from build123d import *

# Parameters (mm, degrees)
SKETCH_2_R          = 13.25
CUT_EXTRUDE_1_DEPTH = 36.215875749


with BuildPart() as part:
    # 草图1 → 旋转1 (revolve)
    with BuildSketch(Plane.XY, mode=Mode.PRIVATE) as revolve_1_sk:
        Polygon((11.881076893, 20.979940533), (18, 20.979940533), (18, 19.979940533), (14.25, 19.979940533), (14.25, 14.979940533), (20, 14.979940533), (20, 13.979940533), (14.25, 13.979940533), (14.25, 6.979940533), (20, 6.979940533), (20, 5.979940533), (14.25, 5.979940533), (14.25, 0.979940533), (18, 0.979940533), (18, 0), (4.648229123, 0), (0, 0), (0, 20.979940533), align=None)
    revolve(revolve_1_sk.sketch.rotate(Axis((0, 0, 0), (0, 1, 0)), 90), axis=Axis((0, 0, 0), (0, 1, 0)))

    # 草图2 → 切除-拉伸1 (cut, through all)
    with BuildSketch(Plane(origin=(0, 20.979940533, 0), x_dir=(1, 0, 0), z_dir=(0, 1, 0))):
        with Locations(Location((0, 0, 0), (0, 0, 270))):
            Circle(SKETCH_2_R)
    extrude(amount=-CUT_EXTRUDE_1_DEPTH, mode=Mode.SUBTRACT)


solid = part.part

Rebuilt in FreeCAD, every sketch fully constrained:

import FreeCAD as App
import Part
import Sketcher


def add_polygon(sketch, points):
    """Adds a closed chain of lines whose ends are joined by coincident constraints."""
    first, n = sketch.GeometryCount, len(points)
    for a, b in zip(points, points[1:] + points[:1]):
        sketch.addGeometry(Part.LineSegment(App.Vector(*a, 0), App.Vector(*b, 0)), False)
    for i in range(n):
        sketch.addConstraint(Sketcher.Constraint("Coincident", first + i, 2, first + (i + 1) % n, 1))

doc = App.newDocument("Part")
body = doc.addObject("PartDesign::Body", "Body")

# Sketch on XY plane
sketch1 = body.newObject("Sketcher::SketchObject", "Sketch")
sketch1.AttachmentSupport = (doc.getObject("XY_Plane"), [""])
sketch1.MapMode = "FlatFace"
add_polygon(sketch1, [(18, 21), (0, 21), (0, 0), (18, 0), (18, 1), (14.2, 1), (14.2, 6), (20, 6), (20, 7), (14.2, 7), (14.2, 14), (20, 14), (20, 15), (14.2, 15), (14.2, 20), (18, 20)])  # lines 0-15
sketch1.addConstraint([
    Sketcher.Constraint("Horizontal", 0),
    Sketcher.Constraint("Vertical", 1),
    Sketcher.Constraint("Horizontal", 2),
    Sketcher.Constraint("Vertical", 3),
    Sketcher.Constraint("Horizontal", 4),
    Sketcher.Constraint("Vertical", 5),
    Sketcher.Constraint("Horizontal", 6),
    Sketcher.Constraint("Vertical", 7),
    Sketcher.Constraint("Horizontal", 8),
    Sketcher.Constraint("Vertical", 9),
    Sketcher.Constraint("Horizontal", 10),
    Sketcher.Constraint("Vertical", 11),
    Sketcher.Constraint("Horizontal", 12),
    Sketcher.Constraint("Vertical", 13),
    Sketcher.Constraint("Horizontal", 14),
    Sketcher.Constraint("Vertical", 15),
    Sketcher.Constraint("Coincident", 1, 2, -1, 1),
    Sketcher.Constraint("Vertical", 5, 2, 8, 2),
    Sketcher.Constraint("Vertical", 7, 2, 10, 2),
    Sketcher.Constraint("Vertical", 9, 2, 12, 2),
    Sketcher.Constraint("Vertical", 3, 2, 14, 2),
    Sketcher.Constraint("Equal", 7, 11),
    Sketcher.Constraint("Equal", 5, 13),
    Sketcher.Constraint("Equal", 11, 15),
    Sketcher.Constraint("DistanceX", 0, 2, 0, 1, 18.0),
    Sketcher.Constraint("DistanceY", 5, 1, 5, 2, 5.0),
    Sketcher.Constraint("DistanceY", 7, 1, 7, 2, 1.0),
    Sketcher.Constraint("DistanceY", 9, 1, 9, 2, 7.0),
    Sketcher.Constraint("DistanceX", -1, 1, 6, 2, 20.0),
    Sketcher.Constraint("DistanceX", 4, 2, 4, 1, 3.75),
    Sketcher.Constraint("DistanceY", 1, 2, 1, 1, 20.979941),
])
revolution = body.newObject("PartDesign::Revolution", "Revolution")
revolution.Profile = sketch1
revolution.ReferenceAxis = (sketch1, ["V_Axis"])
revolution.Angle = 360

# Sketch on XZ plane
sketch2 = body.newObject("Sketcher::SketchObject", "Sketch001")
sketch2.AttachmentSupport = (doc.getObject("XZ_Plane"), [""])
sketch2.MapMode = "FlatFace"
sketch2.AttachmentOffset = App.Placement(App.Vector(0, 0, -20.979941), App.Rotation())
sketch2.addGeometry(Part.Circle(App.Vector(0, 0, 0), App.Vector(0, 0, 1), 13), False)
sketch2.addConstraint([
    Sketcher.Constraint("Coincident", 0, 3, -1, 1),
    Sketcher.Constraint("Diameter", 0, 26.5),
])
pocket1 = body.newObject("PartDesign::Pocket", "Pocket")
pocket1.Profile = sketch2
pocket1.Type = "ThroughAll"
pocket1.Reversed = True

doc.recompute()
